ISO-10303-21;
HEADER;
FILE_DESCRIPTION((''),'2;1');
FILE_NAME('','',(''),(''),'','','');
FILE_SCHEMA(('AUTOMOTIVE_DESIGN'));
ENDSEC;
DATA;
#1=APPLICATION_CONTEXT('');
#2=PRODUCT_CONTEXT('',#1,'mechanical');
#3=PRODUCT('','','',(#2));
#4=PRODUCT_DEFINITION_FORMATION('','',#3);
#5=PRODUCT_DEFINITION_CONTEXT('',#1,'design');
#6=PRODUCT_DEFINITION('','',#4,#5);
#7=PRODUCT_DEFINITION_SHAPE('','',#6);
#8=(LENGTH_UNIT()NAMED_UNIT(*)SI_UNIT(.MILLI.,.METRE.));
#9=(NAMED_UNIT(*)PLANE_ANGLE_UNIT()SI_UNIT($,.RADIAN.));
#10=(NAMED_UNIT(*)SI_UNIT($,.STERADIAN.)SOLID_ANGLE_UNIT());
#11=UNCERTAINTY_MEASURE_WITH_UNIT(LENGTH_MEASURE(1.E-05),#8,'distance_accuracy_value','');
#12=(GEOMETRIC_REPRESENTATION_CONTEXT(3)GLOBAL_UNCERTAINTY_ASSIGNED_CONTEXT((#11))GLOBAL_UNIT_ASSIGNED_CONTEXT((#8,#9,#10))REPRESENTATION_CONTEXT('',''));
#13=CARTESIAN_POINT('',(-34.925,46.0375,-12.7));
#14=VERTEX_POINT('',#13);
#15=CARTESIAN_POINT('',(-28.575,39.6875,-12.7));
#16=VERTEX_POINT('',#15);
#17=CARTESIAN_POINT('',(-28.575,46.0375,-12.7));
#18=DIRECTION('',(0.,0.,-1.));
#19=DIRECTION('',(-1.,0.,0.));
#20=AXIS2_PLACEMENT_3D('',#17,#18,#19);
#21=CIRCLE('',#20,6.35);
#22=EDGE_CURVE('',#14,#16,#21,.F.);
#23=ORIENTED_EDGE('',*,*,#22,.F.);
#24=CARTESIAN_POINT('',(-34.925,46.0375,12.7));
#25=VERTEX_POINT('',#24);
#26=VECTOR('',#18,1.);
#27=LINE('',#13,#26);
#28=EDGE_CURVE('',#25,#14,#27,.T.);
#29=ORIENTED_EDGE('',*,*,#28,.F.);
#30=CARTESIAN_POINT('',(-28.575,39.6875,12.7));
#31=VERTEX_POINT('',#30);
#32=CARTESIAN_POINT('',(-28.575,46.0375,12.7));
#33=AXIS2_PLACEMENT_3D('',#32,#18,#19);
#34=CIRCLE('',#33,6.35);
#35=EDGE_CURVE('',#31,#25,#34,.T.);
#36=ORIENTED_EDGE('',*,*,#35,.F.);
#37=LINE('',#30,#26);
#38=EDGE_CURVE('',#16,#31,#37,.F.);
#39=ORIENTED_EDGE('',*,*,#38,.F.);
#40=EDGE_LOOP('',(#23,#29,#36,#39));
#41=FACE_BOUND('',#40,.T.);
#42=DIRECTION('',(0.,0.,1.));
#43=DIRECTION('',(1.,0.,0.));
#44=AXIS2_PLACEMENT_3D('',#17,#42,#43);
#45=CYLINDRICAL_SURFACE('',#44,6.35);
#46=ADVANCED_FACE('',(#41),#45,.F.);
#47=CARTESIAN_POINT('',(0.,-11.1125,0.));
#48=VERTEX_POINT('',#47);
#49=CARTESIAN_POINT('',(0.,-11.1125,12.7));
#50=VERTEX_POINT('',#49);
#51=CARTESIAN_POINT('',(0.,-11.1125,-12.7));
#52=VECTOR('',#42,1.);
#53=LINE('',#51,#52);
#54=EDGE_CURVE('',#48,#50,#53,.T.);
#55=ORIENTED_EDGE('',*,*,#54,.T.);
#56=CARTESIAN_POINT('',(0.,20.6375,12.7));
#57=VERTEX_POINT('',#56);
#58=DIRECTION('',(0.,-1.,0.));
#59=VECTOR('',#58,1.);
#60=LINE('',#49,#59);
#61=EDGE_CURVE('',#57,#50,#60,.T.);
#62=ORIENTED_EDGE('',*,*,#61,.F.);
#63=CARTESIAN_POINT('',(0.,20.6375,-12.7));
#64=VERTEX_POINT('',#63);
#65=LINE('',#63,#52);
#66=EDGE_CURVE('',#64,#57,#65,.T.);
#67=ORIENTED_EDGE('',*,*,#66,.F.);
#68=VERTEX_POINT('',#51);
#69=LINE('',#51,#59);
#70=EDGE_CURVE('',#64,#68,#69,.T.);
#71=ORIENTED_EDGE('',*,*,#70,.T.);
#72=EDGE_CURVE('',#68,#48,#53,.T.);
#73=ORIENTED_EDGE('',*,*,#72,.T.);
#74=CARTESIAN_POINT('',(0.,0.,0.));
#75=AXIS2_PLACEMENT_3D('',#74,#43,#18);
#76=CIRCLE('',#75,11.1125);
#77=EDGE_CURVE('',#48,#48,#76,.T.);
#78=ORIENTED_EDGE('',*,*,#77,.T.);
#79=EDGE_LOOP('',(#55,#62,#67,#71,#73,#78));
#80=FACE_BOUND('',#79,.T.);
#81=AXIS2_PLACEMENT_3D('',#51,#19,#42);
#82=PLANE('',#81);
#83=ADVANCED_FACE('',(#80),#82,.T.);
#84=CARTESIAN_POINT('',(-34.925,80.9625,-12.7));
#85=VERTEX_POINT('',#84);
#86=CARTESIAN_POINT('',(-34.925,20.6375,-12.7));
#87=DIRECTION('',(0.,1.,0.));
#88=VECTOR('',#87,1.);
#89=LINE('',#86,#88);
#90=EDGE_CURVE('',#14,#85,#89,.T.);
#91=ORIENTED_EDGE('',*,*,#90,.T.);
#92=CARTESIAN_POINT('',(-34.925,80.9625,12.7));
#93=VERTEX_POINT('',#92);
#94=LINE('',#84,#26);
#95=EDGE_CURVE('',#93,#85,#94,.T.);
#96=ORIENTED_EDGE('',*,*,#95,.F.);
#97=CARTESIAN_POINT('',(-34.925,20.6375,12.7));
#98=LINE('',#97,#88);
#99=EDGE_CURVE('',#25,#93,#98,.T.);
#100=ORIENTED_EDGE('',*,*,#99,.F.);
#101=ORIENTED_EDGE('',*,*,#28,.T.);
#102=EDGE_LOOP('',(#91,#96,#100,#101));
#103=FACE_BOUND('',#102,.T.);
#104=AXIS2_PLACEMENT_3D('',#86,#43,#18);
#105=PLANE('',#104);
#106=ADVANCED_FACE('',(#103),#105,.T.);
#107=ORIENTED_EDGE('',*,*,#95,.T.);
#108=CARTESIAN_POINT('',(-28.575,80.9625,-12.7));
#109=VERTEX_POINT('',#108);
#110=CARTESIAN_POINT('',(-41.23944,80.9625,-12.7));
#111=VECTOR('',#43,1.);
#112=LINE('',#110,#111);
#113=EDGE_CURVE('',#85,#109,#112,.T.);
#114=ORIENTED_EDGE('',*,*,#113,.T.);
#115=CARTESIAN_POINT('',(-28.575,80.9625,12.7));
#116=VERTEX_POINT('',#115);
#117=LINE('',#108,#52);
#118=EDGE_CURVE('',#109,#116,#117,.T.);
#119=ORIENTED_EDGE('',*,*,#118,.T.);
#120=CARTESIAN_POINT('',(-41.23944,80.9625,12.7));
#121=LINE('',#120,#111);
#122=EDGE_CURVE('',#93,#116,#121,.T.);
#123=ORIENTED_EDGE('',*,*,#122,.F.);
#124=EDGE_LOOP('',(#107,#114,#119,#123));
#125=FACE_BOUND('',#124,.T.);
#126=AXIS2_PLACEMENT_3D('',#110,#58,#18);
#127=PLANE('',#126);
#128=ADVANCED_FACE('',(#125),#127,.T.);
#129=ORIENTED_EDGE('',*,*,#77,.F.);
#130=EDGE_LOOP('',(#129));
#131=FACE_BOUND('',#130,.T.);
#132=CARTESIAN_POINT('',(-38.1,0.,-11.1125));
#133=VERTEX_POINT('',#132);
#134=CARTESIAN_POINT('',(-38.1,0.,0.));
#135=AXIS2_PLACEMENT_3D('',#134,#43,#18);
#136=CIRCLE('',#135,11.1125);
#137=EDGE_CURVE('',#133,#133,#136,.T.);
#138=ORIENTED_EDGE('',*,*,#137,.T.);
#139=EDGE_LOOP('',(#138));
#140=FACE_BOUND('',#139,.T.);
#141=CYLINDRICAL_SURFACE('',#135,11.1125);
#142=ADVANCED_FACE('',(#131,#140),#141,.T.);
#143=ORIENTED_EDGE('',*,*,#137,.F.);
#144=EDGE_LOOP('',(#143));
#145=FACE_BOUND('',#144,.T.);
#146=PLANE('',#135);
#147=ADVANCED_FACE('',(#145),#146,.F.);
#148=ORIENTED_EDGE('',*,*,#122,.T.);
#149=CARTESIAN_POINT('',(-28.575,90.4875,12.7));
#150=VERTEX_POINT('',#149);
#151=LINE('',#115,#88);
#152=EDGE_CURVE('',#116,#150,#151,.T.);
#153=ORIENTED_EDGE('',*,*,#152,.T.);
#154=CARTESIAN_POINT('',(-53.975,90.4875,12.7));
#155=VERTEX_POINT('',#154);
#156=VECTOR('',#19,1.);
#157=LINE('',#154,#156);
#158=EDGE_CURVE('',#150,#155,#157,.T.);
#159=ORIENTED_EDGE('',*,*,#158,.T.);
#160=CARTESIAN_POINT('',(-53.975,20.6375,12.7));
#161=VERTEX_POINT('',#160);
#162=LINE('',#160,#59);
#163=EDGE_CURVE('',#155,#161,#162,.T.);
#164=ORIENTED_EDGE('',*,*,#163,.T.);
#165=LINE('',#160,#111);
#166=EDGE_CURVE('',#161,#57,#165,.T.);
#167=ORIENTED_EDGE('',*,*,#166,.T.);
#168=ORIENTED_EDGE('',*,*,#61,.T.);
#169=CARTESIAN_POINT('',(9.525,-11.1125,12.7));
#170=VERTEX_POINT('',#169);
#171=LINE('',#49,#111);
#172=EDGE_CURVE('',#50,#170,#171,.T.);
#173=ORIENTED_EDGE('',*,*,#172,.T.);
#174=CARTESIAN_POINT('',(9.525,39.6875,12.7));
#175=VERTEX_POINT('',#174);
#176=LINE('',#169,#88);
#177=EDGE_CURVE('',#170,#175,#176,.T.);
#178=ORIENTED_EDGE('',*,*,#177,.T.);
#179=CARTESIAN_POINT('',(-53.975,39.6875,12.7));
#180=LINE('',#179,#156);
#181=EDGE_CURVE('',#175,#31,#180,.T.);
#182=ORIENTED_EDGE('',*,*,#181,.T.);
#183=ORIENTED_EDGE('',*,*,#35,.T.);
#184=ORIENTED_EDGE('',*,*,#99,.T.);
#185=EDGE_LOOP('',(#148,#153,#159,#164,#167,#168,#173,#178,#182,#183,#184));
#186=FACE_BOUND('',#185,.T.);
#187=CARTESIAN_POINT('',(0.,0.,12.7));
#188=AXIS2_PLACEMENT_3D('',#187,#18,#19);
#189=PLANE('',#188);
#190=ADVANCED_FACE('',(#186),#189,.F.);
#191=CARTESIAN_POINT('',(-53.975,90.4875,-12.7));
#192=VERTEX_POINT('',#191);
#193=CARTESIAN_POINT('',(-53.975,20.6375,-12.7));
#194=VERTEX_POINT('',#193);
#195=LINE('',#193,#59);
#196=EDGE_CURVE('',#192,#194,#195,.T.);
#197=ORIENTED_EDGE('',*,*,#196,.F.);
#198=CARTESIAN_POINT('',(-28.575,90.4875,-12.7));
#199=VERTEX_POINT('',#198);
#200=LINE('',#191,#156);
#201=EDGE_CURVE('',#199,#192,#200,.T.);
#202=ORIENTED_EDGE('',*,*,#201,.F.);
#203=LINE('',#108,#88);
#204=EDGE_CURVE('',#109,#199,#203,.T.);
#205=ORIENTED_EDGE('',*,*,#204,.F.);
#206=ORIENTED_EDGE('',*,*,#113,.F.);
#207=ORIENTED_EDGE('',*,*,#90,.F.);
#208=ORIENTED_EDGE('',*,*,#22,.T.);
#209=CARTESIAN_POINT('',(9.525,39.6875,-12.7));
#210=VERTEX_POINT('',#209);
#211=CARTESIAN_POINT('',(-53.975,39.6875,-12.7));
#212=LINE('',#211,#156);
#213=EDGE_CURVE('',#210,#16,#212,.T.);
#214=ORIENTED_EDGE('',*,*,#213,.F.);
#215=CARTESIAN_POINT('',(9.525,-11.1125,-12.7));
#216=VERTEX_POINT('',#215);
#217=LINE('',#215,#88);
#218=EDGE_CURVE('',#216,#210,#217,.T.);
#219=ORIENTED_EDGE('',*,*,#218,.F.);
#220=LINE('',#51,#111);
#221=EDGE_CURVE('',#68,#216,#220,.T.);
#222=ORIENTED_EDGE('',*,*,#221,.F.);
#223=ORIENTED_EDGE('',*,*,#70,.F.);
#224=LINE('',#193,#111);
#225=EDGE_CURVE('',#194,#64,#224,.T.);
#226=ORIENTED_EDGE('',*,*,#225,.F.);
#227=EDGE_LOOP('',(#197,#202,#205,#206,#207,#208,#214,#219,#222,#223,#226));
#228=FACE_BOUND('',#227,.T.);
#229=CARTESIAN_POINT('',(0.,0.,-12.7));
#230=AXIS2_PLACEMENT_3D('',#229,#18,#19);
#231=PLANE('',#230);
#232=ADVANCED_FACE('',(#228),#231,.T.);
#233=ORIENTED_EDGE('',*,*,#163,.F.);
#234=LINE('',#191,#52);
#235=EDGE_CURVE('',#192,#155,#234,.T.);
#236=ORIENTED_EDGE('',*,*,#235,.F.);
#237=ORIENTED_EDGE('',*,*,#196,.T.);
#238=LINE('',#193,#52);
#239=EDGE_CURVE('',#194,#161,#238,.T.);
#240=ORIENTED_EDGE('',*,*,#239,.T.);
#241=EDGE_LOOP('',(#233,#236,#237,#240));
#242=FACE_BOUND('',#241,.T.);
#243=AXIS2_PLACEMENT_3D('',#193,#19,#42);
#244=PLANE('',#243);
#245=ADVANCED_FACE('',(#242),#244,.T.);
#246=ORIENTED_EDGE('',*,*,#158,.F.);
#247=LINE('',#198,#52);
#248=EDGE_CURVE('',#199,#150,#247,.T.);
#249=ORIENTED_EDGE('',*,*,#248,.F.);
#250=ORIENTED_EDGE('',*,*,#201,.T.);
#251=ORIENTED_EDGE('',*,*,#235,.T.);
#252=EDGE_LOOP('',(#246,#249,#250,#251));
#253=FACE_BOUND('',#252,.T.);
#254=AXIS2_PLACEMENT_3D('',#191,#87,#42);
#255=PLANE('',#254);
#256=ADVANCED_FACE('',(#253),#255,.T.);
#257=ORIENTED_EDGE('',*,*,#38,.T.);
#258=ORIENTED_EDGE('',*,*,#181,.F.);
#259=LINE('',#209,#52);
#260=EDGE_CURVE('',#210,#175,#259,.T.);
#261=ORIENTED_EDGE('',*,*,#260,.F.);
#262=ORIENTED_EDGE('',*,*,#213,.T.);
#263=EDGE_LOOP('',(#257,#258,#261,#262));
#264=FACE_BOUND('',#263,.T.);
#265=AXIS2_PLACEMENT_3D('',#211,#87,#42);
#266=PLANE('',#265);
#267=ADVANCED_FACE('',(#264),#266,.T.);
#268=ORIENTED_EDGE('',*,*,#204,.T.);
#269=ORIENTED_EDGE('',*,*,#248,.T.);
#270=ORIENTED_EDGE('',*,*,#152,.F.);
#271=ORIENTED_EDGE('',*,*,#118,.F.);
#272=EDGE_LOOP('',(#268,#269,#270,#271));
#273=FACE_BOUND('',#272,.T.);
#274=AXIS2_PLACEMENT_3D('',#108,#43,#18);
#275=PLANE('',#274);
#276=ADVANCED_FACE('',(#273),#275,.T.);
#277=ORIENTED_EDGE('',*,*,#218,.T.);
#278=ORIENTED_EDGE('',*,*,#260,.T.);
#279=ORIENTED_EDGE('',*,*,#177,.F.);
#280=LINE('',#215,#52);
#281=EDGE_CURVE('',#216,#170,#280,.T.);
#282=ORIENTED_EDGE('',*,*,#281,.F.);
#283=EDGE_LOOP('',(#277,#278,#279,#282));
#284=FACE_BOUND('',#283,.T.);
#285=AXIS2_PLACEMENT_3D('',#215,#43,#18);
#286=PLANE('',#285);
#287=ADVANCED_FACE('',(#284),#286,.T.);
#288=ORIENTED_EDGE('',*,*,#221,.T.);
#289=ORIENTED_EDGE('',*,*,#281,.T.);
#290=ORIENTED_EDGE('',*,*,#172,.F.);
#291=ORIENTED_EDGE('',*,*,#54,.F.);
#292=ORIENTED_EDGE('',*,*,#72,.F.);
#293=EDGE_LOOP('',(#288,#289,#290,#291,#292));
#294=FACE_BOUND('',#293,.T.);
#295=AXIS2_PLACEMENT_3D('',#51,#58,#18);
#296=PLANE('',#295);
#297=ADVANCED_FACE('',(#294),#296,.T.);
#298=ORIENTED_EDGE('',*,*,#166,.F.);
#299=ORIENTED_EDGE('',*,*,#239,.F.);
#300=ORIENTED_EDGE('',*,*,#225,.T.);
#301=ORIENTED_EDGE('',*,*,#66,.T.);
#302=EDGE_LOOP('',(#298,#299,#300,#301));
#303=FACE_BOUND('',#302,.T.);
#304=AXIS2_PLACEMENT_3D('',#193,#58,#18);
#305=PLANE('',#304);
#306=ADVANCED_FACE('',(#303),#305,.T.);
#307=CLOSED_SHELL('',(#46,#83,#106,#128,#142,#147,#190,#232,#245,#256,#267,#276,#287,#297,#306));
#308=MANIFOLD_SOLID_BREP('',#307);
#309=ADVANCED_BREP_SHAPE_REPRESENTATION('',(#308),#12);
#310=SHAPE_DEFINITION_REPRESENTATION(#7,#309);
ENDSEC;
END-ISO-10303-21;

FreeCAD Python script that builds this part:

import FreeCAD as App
import Part
import Sketcher
from FreeCAD import Vector
Q = App.Units.Quantity


def edges_at(feature, points):
    """Names of the edges that pass closest to the given points."""
    edges = feature.Shape.Edges
    near = lambda p: min(range(len(edges)), key=lambda i: edges[i].distToShape(Part.Vertex(*p))[0])
    return sorted({f"Edge{near(p) + 1}" for p in points})


def add_polygon(sketch, points):
    """Adds a closed chain of lines whose ends are joined by coincident constraints."""
    first, n = sketch.GeometryCount, len(points)
    for a, b in zip(points, points[1:] + points[:1]):
        sketch.addGeometry(Part.LineSegment(App.Vector(*a, 0), App.Vector(*b, 0)), False)
    for i in range(n):
        sketch.addConstraint(Sketcher.Constraint("Coincident", first + i, 2, first + (i + 1) % n, 1))

doc = App.newDocument("Part")
body = doc.addObject("PartDesign::Body", "Body")

# Sketch on YZ plane
sketch1 = body.newObject("Sketcher::SketchObject", "Sketch")
sketch1.AttachmentSupport = (doc.getObject("YZ_Plane"), [""])
sketch1.MapMode = "FlatFace"
sketch1.addGeometry(Part.Circle(Vector(0, 0, 0), Vector(0, 0, 1), 11), False)
sketch1.addConstraint([
    Sketcher.Constraint("Coincident", 0, 3, -1, 1),
    Sketcher.Constraint("Diameter", 0, Q("0.875 in")),
])
pad1 = body.newObject("PartDesign::Pad", "Pad")
pad1.Profile = sketch1
pad1.Length = Q("1.5 in")
pad1.Reversed = True

# Sketch on XY plane
sketch2 = body.newObject("Sketcher::SketchObject", "Sketch001")
sketch2.AttachmentSupport = (doc.getObject("XY_Plane"), [""])
sketch2.MapMode = "FlatFace"
add_polygon(sketch2, [(0, 21), (0, -11), (10, -11), (10, 21)])  # lines 0-3
sketch2.addConstraint([
    Sketcher.Constraint("Vertical", 0),
    Sketcher.Constraint("Horizontal", 1),
    Sketcher.Constraint("Vertical", 2),
    Sketcher.Constraint("Horizontal", 3),
    Sketcher.Constraint("PointOnObject", 0, 2, -2),
    Sketcher.Constraint("DistanceY", 0, 2, 0, 1, Q("1.25 in")),
    Sketcher.Constraint("DistanceX", 1, 1, 1, 2, Q("0.375 in")),
    Sketcher.Constraint("DistanceY", 0, 2, -1, 1, Q("0.4375 in")),
])
pad2 = body.newObject("PartDesign::Pad", "Pad001")
pad2.Profile = sketch2
pad2.Type = "TwoLengths"
pad2.Length = Q("0.5 in")
pad2.Length2 = Q("0.5 in")

# Sketch on XY plane
sketch3 = body.newObject("Sketcher::SketchObject", "Sketch002")
sketch3.AttachmentSupport = (doc.getObject("XY_Plane"), [""])
sketch3.MapMode = "FlatFace"
add_polygon(sketch3, [(-54, 40), (-54, 21), (10, 21), (10, 40)])  # lines 0-3
sketch3.addConstraint([
    Sketcher.Constraint("Vertical", 0),
    Sketcher.Constraint("Horizontal", 1),
    Sketcher.Constraint("Vertical", 2),
    Sketcher.Constraint("Horizontal", 3),
    Sketcher.Constraint("DistanceX", 1, 1, 1, 2, Q("2.5 in")),
    Sketcher.Constraint("DistanceY", 0, 2, 0, 1, Q("0.75 in")),
    Sketcher.Constraint("DistanceX", 0, 2, -1, 1, Q("2.125 in")),
    Sketcher.Constraint("DistanceY", -1, 1, 0, 2, Q("0.8125 in")),
])
pad3 = body.newObject("PartDesign::Pad", "Pad002")
pad3.Profile = sketch3
pad3.Type = "TwoLengths"
pad3.Length = Q("0.5 in")
pad3.Length2 = Q("0.5 in")

# Sketch on XY plane
sketch4 = body.newObject("Sketcher::SketchObject", "Sketch003")
sketch4.AttachmentSupport = (doc.getObject("XY_Plane"), [""])
sketch4.MapMode = "FlatFace"
add_polygon(sketch4, [(-54, 90), (-54, 21), (-35, 21), (-35, 90)])  # lines 0-3
sketch4.addConstraint([
    Sketcher.Constraint("Vertical", 0),
    Sketcher.Constraint("Horizontal", 1),
    Sketcher.Constraint("Vertical", 2),
    Sketcher.Constraint("Horizontal", 3),
    Sketcher.Constraint("DistanceX", 1, 1, 1, 2, Q("0.75 in")),
    Sketcher.Constraint("DistanceY", 0, 2, 0, 1, Q("2.75 in")),
    Sketcher.Constraint("DistanceX", 0, 2, -1, 1, Q("2.125 in")),
    Sketcher.Constraint("DistanceY", -1, 1, 0, 2, Q("0.8125 in")),
])
pad4 = body.newObject("PartDesign::Pad", "Pad003")
pad4.Profile = sketch4
pad4.Type = "TwoLengths"
pad4.Length = Q("0.5 in")
pad4.Length2 = Q("0.5 in")

# Sketch on XY plane
sketch5 = body.newObject("Sketcher::SketchObject", "Sketch004")
sketch5.AttachmentSupport = (doc.getObject("XY_Plane"), [""])
sketch5.MapMode = "FlatFace"
add_polygon(sketch5, [(-54, 77.8), (-41.2, 77.8), (-41.2, 81), (-28.6, 81), (-28.6, 90.5), (-54, 90.5)])  # lines 0-5
sketch5.addConstraint([
    Sketcher.Constraint("Horizontal", 0),
    Sketcher.Constraint("Vertical", 1),
    Sketcher.Constraint("Horizontal", 2),
    Sketcher.Constraint("Vertical", 3),
    Sketcher.Constraint("Horizontal", 4),
    Sketcher.Constraint("Vertical", 5),
    Sketcher.Constraint("DistanceX", 4, 2, 4, 1, Q("1 in")),
    Sketcher.Constraint("DistanceY", 5, 2, 5, 1, Q("0.5 in")),
    Sketcher.Constraint("DistanceY", 1, 1, 1, 2, Q("0.125 in")),
    Sketcher.Constraint("DistanceX", 0, 1, 0, 2, Q("0.5014 in")),
    Sketcher.Constraint("DistanceY", -1, 1, 0, 2, Q("3.0625 in")),
    Sketcher.Constraint("DistanceX", 2, 2, -1, 1, Q("1.125 in")),
])
pad5 = body.newObject("PartDesign::Pad", "Pad004")
pad5.Profile = sketch5
pad5.Type = "TwoLengths"
pad5.Length = Q("0.5 in")
pad5.Length2 = Q("0.5 in")
doc.recompute()

fillet = body.newObject("PartDesign::Fillet", "Fillet")
fillet.Base = (pad5, edges_at(pad5, [(-34.925, 39.688, 0)]))
fillet.Radius = Q("0.25 in")

doc.recompute()
